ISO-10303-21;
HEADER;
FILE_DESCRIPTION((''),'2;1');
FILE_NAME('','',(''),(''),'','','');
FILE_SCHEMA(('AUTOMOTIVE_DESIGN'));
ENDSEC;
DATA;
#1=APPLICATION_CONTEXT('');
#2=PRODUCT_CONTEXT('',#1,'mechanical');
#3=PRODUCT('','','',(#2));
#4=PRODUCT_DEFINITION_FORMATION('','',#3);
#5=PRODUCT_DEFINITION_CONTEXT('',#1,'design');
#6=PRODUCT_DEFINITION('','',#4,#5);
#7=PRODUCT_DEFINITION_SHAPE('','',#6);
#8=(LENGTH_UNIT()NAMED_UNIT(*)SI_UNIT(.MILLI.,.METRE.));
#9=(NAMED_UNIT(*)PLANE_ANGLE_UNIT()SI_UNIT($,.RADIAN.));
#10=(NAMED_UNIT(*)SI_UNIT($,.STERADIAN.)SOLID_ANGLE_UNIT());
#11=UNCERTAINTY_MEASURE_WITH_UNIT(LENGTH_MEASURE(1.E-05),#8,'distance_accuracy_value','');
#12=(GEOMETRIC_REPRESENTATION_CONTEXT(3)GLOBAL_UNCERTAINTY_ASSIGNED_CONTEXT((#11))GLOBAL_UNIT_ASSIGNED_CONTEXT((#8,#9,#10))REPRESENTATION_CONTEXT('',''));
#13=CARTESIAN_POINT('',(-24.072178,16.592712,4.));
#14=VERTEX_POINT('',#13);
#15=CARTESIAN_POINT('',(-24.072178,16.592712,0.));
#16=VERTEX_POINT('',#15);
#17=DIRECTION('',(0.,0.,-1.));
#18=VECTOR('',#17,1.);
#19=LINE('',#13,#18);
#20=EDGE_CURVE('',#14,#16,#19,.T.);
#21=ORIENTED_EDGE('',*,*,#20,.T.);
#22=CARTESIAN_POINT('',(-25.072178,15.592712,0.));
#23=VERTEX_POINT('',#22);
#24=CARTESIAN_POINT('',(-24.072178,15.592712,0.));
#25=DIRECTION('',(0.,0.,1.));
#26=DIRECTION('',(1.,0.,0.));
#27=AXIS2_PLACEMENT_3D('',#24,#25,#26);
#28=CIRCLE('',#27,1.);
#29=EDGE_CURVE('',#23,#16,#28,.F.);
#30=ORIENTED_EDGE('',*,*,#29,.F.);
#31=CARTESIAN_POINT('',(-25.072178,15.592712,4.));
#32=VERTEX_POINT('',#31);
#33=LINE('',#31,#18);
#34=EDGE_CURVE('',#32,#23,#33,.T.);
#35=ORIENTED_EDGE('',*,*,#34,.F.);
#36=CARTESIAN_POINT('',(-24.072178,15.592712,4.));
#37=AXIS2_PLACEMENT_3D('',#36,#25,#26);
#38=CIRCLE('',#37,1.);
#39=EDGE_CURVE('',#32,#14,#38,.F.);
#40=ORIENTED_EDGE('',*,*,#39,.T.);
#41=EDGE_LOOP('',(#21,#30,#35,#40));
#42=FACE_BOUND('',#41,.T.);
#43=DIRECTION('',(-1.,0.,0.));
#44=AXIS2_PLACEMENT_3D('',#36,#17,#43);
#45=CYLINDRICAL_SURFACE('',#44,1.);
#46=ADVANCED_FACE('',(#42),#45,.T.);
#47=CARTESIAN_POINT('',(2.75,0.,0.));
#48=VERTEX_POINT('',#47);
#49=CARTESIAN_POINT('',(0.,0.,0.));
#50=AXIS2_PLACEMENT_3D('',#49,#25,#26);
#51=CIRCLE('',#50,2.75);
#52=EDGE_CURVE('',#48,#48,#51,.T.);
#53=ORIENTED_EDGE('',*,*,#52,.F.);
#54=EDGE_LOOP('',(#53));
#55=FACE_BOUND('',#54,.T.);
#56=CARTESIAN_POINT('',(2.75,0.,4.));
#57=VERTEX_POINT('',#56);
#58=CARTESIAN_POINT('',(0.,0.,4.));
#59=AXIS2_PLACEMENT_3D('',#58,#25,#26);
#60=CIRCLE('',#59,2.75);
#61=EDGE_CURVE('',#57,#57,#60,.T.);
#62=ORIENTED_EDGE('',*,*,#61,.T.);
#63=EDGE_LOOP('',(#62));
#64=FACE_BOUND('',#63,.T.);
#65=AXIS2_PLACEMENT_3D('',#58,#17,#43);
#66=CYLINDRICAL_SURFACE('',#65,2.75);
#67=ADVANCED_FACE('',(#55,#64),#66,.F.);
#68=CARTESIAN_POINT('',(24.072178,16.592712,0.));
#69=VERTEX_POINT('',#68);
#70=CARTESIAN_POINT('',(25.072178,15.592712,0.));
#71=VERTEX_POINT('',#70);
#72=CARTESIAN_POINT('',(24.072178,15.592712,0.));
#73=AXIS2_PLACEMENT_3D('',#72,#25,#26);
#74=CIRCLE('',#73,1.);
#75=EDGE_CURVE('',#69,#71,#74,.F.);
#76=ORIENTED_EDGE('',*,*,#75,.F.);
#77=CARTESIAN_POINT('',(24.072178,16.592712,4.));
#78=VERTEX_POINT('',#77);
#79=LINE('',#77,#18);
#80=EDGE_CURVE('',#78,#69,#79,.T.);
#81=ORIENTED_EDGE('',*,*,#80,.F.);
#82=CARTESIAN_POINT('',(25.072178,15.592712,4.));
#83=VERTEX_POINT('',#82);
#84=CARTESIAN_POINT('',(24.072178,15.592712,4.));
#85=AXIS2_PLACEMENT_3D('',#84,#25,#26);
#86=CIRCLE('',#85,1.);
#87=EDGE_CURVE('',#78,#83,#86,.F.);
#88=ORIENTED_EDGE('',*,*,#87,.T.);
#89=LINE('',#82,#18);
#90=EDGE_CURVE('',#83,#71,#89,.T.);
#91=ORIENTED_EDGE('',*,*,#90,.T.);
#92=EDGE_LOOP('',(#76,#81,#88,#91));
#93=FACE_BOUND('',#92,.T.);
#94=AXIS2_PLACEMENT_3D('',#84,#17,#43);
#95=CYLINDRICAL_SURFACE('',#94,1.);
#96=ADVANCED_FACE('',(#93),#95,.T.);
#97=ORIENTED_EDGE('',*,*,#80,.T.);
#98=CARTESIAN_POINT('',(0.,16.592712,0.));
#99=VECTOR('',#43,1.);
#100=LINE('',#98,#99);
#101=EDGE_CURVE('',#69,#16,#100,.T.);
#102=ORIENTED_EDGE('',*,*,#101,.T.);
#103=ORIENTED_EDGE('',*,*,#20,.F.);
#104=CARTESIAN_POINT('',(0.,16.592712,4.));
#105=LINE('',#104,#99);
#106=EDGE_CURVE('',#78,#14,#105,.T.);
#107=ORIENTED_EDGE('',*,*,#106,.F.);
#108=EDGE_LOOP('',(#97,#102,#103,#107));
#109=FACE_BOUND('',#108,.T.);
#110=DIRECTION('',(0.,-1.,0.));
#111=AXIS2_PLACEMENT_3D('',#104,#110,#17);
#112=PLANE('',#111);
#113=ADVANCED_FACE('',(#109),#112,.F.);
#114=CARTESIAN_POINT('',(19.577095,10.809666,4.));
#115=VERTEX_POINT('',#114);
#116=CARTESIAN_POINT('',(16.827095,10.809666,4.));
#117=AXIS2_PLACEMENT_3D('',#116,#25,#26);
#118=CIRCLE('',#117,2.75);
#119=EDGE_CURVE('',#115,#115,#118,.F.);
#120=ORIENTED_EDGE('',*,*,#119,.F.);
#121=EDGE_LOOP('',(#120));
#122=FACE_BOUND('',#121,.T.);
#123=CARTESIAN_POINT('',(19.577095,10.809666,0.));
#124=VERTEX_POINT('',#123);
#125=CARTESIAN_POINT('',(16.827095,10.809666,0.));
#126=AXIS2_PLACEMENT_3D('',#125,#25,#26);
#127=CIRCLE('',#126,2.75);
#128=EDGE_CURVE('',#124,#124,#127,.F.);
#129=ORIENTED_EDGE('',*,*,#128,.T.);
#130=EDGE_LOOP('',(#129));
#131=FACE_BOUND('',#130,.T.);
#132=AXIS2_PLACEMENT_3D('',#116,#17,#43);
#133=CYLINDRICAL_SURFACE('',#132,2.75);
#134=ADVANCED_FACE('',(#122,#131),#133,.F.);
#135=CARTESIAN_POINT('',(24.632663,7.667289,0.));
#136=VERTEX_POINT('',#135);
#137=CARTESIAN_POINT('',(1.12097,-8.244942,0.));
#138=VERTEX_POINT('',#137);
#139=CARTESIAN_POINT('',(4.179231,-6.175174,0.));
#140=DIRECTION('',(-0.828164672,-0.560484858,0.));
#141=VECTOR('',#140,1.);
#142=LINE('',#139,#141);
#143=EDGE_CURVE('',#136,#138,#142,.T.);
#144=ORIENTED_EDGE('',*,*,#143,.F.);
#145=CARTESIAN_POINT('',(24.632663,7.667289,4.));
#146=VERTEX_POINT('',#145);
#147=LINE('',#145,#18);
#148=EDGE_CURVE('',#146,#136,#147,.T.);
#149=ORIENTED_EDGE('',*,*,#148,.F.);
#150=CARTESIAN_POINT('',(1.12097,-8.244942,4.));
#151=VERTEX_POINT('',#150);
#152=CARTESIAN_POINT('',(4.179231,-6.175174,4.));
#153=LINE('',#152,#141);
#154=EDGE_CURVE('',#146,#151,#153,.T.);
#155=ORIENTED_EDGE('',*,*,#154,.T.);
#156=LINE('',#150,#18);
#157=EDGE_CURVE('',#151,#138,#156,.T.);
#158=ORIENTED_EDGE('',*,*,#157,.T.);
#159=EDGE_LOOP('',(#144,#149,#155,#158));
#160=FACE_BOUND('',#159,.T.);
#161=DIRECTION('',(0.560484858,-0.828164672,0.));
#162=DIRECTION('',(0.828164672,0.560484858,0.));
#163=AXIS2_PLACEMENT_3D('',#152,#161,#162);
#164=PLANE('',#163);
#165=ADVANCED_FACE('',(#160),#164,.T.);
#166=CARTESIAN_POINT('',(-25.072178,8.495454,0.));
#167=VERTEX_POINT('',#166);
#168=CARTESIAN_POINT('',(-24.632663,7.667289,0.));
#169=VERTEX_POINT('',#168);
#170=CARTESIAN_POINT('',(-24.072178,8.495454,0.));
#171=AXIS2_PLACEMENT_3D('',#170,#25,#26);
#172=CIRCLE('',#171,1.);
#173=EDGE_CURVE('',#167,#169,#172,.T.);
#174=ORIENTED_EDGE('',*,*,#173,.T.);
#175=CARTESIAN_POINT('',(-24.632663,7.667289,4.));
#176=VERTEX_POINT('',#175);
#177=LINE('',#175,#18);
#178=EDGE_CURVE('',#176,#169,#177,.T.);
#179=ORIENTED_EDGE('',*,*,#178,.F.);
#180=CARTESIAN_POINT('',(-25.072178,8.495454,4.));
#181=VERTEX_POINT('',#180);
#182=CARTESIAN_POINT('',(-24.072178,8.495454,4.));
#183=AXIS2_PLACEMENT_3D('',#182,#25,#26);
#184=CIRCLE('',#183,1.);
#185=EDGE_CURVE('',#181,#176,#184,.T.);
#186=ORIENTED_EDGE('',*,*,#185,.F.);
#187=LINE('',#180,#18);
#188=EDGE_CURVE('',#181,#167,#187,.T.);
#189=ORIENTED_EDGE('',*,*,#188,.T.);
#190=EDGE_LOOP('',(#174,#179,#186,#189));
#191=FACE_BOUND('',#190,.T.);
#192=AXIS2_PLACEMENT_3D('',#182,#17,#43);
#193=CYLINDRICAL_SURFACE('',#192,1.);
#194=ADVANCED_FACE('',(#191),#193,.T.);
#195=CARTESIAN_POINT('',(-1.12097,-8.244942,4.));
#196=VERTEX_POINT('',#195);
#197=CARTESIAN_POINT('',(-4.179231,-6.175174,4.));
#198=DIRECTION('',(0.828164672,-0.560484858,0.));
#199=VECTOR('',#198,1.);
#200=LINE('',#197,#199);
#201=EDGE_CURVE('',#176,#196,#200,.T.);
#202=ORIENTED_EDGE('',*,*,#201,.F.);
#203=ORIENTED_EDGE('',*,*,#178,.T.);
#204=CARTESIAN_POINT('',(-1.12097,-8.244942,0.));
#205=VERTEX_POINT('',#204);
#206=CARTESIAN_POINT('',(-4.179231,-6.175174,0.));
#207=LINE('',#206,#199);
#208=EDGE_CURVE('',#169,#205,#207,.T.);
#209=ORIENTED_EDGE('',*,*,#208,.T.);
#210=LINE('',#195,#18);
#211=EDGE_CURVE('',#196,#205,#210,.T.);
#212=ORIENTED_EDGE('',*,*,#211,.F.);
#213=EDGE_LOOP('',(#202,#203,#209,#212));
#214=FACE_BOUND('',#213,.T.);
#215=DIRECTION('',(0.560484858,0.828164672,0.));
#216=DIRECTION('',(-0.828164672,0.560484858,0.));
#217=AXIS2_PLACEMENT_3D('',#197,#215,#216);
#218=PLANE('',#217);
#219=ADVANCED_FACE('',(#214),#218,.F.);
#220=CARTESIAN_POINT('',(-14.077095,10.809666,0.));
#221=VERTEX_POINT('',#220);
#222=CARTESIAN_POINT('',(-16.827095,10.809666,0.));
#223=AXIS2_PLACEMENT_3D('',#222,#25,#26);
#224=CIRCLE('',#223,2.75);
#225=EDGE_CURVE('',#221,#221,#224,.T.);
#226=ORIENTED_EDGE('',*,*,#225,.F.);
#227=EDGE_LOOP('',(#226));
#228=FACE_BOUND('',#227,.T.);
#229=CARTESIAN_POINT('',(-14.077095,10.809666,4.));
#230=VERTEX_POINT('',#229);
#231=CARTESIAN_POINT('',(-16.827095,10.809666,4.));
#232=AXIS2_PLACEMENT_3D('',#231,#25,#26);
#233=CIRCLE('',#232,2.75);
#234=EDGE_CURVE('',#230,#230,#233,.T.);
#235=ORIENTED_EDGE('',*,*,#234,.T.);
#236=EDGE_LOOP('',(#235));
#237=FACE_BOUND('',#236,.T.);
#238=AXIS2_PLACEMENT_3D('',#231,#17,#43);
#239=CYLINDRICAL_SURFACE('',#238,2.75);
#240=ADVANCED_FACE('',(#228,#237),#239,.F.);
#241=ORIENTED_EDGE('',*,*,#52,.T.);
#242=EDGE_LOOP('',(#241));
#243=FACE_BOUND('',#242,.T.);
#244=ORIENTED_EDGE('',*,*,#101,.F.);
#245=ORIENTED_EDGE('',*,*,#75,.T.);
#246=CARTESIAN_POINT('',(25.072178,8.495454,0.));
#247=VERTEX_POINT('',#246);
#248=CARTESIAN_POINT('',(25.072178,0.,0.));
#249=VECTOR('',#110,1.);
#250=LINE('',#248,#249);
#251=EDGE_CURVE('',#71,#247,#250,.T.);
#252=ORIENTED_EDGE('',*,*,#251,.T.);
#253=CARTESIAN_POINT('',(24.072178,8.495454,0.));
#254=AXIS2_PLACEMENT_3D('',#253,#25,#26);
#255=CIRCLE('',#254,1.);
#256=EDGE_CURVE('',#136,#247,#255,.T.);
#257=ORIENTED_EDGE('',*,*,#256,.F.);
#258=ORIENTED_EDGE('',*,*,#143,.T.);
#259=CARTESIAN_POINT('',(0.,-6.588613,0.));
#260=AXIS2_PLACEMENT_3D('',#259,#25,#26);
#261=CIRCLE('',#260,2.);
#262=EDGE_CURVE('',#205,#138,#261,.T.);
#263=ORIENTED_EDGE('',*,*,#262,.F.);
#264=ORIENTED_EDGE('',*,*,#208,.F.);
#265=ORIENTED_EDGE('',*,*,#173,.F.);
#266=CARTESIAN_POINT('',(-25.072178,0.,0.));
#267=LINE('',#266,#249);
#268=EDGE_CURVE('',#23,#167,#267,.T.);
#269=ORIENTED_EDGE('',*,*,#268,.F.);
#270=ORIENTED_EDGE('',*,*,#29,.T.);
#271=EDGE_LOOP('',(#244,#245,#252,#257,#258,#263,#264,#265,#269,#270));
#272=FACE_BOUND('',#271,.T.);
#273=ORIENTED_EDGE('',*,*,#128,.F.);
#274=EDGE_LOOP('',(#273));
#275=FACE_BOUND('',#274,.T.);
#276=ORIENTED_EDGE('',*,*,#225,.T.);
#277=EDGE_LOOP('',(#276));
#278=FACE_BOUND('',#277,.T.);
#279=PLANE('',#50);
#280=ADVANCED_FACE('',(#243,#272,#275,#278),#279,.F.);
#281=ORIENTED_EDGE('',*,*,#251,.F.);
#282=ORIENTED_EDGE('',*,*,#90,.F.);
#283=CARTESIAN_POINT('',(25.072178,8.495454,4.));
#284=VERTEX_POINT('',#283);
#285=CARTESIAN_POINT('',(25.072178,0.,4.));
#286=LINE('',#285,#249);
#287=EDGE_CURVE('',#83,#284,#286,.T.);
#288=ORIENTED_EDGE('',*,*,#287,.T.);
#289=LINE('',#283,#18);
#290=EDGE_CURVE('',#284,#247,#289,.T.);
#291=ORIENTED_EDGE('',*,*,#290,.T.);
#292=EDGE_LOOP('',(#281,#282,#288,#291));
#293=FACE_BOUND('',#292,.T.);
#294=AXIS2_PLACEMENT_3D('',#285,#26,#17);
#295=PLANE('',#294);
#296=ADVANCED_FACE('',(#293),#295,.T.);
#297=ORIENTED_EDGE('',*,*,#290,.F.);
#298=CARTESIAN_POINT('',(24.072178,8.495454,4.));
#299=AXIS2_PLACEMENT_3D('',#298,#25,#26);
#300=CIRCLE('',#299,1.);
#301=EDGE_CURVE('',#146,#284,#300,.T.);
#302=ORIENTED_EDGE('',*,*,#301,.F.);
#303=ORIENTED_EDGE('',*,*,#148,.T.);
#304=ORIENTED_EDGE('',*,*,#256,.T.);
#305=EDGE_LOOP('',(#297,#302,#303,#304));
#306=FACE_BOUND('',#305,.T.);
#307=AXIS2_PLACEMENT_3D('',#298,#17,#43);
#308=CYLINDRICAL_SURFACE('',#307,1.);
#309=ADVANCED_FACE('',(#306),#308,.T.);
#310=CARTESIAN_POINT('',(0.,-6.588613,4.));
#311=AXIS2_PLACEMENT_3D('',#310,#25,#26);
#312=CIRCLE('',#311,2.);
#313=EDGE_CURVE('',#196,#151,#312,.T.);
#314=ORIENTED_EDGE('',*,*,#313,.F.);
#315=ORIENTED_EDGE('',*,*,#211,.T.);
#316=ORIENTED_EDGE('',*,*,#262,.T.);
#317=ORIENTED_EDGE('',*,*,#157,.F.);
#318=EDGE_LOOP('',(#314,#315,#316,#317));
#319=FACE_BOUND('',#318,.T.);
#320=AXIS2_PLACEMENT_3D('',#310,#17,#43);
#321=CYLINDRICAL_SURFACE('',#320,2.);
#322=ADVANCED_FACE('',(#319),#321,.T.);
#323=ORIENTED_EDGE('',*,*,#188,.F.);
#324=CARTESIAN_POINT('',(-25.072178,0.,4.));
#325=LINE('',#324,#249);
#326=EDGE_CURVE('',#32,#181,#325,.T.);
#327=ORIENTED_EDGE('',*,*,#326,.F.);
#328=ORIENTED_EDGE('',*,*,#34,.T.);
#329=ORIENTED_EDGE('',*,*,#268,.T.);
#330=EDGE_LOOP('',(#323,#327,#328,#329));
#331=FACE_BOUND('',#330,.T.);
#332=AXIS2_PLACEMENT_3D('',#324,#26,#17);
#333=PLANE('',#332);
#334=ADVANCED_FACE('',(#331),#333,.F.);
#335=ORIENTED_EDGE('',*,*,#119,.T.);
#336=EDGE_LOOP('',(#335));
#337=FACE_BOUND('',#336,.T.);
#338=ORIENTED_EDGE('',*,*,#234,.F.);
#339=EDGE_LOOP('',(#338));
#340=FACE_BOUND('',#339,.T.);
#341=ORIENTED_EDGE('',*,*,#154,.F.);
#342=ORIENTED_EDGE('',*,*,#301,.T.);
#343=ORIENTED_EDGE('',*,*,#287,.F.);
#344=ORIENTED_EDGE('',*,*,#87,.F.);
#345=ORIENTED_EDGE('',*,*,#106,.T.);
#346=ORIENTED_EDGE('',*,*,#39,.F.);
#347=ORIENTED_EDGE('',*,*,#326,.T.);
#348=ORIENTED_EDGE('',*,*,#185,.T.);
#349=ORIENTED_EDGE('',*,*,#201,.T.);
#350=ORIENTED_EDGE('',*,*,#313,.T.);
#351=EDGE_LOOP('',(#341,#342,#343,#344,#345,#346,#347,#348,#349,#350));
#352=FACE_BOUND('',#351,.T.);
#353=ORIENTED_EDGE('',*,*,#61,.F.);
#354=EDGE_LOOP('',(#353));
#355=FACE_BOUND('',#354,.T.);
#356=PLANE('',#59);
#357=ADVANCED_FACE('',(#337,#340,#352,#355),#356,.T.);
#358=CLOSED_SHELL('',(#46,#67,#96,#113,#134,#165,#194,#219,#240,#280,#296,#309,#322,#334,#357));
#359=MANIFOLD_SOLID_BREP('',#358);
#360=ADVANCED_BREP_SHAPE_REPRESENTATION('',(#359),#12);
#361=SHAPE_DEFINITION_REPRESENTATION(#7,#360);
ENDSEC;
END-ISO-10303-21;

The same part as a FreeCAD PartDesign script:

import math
import FreeCAD as App
import Part
import Sketcher
from FreeCAD import Vector
Q = App.Units.Quantity

doc = App.newDocument("Part")
body = doc.addObject("PartDesign::Body", "Body")

sketch1 = doc.addObject("Sketcher::SketchObject", "Sketch")
body.addObject(sketch1)
sketch1.AttachmentSupport = (doc.XY_Plane, [""])
sketch1.MapMode = "FlatFace"
sketch1.addGeometry(Part.LineSegment(Vector(24.072178, 16.592712, 0), Vector(-24.072178, 16.592712, 0)), False)
sketch1.addGeometry(Part.ArcOfCircle(Part.Circle(Vector(-24.072178, 15.592712, 0), Vector(0, 0, 1), 1), math.radians(90), math.radians(180)), False)
sketch1.addGeometry(Part.LineSegment(Vector(-25.072178, 15.592712, 0), Vector(-25.072178, 8.495454, 0)), False)
sketch1.addGeometry(Part.ArcOfCircle(Part.Circle(Vector(-24.072178, 8.495454, 0), Vector(0, 0, 1), 1), math.radians(180), math.radians(235.910664)), False)
sketch1.addGeometry(Part.LineSegment(Vector(-24.632663, 7.667289, 0), Vector(-1.12097, -8.244942, 0)), False)
sketch1.addGeometry(Part.ArcOfCircle(Part.Circle(Vector(0, -6.588613, 0), Vector(0, 0, 1), 2), math.radians(-124.089336), math.radians(-55.910664)), False)
sketch1.addGeometry(Part.LineSegment(Vector(1.12097, -8.244942, 0), Vector(24.632663, 7.667289, 0)), False)
sketch1.addGeometry(Part.ArcOfCircle(Part.Circle(Vector(24.072178, 8.495454, 0), Vector(0, 0, 1), 1), math.radians(-55.910664), math.radians(0)), False)
sketch1.addGeometry(Part.LineSegment(Vector(25.072178, 8.495454, 0), Vector(25.072178, 15.592712, 0)), False)
sketch1.addGeometry(Part.ArcOfCircle(Part.Circle(Vector(24.072178, 15.592712, 0), Vector(0, 0, 1), 1), math.radians(0), math.radians(90)), False)
sketch1.addGeometry(Part.Circle(Vector(0, 0, 0), Vector(0, 0, 1), 2.75), False)
sketch1.addGeometry(Part.Circle(Vector(-16.827095, 10.809666, 0), Vector(0, 0, 1), 2.75), False)
sketch1.addGeometry(Part.Circle(Vector(16.827095, 10.809666, 0), Vector(0, 0, 1), 2.75), False)
sketch1.addConstraint(Sketcher.Constraint("Tangent", 0, 2, 1, 1))
sketch1.addConstraint(Sketcher.Constraint("Tangent", 1, 2, 2, 1))
sketch1.addConstraint(Sketcher.Constraint("Tangent", 2, 2, 3, 1))
sketch1.addConstraint(Sketcher.Constraint("Tangent", 3, 2, 4, 1))
sketch1.addConstraint(Sketcher.Constraint("Tangent", 4, 2, 5, 1))
sketch1.addConstraint(Sketcher.Constraint("Tangent", 5, 2, 6, 1))
sketch1.addConstraint(Sketcher.Constraint("Tangent", 6, 2, 7, 1))
sketch1.addConstraint(Sketcher.Constraint("Tangent", 7, 2, 8, 1))
sketch1.addConstraint(Sketcher.Constraint("Tangent", 8, 2, 9, 1))
sketch1.addConstraint(Sketcher.Constraint("Tangent", 9, 2, 0, 1))
sketch1.addConstraint(Sketcher.Constraint("Horizontal", 0))
sketch1.addConstraint(Sketcher.Constraint("Vertical", 2))
sketch1.addConstraint(Sketcher.Constraint("Vertical", 8))
sketch1.addConstraint(Sketcher.Constraint("Coincident", 10, 3, -1, 1))
sketch1.addConstraint(Sketcher.Constraint("Equal", 1, 3))
sketch1.addConstraint(Sketcher.Constraint("Equal", 3, 7))
sketch1.addConstraint(Sketcher.Constraint("Equal", 7, 9))
sketch1.addConstraint(Sketcher.Constraint("Equal", 10, 11))
sketch1.addConstraint(Sketcher.Constraint("Equal", 11, 12))
sketch1.addConstraint(Sketcher.Constraint("Symmetric", 3, 3, 7, 3, -2))
sketch1.addConstraint(Sketcher.Constraint("Symmetric", 11, 3, 12, 3, -2))
sketch1.addConstraint(Sketcher.Constraint("PointOnObject", 5, 3, -2))
sketch1.addConstraint(Sketcher.Constraint("Radius", 1, Q("1 mm")))
sketch1.addConstraint(Sketcher.Constraint("Radius", 5, Q("2 mm")))
sketch1.addConstraint(Sketcher.Constraint("Diameter", 10, Q("5.5 mm")))
sketch1.addConstraint(Sketcher.Constraint("Distance", 4, Q("28.390119 mm")))
sketch1.addConstraint(Sketcher.Constraint("DistanceX", 0, 2, 0, 1, Q("48.144357 mm")))
sketch1.addConstraint(Sketcher.Constraint("DistanceY", 2, 2, 2, 1, Q("7.097258 mm")))
sketch1.addConstraint(Sketcher.Constraint("DistanceY", -1, 1, 1, 3, Q("15.592712 mm")))
sketch1.addConstraint(Sketcher.Constraint("DistanceY", 3, 3, 11, 3, Q("2.314212 mm")))
sketch1.addConstraint(Sketcher.Constraint("DistanceX", 11, 3, 12, 3, Q("33.65419 mm")))
pad1 = doc.addObject("PartDesign::Pad", "Pad")
body.addObject(pad1)
pad1.Profile = sketch1
pad1.Length = 4

doc.recompute()
